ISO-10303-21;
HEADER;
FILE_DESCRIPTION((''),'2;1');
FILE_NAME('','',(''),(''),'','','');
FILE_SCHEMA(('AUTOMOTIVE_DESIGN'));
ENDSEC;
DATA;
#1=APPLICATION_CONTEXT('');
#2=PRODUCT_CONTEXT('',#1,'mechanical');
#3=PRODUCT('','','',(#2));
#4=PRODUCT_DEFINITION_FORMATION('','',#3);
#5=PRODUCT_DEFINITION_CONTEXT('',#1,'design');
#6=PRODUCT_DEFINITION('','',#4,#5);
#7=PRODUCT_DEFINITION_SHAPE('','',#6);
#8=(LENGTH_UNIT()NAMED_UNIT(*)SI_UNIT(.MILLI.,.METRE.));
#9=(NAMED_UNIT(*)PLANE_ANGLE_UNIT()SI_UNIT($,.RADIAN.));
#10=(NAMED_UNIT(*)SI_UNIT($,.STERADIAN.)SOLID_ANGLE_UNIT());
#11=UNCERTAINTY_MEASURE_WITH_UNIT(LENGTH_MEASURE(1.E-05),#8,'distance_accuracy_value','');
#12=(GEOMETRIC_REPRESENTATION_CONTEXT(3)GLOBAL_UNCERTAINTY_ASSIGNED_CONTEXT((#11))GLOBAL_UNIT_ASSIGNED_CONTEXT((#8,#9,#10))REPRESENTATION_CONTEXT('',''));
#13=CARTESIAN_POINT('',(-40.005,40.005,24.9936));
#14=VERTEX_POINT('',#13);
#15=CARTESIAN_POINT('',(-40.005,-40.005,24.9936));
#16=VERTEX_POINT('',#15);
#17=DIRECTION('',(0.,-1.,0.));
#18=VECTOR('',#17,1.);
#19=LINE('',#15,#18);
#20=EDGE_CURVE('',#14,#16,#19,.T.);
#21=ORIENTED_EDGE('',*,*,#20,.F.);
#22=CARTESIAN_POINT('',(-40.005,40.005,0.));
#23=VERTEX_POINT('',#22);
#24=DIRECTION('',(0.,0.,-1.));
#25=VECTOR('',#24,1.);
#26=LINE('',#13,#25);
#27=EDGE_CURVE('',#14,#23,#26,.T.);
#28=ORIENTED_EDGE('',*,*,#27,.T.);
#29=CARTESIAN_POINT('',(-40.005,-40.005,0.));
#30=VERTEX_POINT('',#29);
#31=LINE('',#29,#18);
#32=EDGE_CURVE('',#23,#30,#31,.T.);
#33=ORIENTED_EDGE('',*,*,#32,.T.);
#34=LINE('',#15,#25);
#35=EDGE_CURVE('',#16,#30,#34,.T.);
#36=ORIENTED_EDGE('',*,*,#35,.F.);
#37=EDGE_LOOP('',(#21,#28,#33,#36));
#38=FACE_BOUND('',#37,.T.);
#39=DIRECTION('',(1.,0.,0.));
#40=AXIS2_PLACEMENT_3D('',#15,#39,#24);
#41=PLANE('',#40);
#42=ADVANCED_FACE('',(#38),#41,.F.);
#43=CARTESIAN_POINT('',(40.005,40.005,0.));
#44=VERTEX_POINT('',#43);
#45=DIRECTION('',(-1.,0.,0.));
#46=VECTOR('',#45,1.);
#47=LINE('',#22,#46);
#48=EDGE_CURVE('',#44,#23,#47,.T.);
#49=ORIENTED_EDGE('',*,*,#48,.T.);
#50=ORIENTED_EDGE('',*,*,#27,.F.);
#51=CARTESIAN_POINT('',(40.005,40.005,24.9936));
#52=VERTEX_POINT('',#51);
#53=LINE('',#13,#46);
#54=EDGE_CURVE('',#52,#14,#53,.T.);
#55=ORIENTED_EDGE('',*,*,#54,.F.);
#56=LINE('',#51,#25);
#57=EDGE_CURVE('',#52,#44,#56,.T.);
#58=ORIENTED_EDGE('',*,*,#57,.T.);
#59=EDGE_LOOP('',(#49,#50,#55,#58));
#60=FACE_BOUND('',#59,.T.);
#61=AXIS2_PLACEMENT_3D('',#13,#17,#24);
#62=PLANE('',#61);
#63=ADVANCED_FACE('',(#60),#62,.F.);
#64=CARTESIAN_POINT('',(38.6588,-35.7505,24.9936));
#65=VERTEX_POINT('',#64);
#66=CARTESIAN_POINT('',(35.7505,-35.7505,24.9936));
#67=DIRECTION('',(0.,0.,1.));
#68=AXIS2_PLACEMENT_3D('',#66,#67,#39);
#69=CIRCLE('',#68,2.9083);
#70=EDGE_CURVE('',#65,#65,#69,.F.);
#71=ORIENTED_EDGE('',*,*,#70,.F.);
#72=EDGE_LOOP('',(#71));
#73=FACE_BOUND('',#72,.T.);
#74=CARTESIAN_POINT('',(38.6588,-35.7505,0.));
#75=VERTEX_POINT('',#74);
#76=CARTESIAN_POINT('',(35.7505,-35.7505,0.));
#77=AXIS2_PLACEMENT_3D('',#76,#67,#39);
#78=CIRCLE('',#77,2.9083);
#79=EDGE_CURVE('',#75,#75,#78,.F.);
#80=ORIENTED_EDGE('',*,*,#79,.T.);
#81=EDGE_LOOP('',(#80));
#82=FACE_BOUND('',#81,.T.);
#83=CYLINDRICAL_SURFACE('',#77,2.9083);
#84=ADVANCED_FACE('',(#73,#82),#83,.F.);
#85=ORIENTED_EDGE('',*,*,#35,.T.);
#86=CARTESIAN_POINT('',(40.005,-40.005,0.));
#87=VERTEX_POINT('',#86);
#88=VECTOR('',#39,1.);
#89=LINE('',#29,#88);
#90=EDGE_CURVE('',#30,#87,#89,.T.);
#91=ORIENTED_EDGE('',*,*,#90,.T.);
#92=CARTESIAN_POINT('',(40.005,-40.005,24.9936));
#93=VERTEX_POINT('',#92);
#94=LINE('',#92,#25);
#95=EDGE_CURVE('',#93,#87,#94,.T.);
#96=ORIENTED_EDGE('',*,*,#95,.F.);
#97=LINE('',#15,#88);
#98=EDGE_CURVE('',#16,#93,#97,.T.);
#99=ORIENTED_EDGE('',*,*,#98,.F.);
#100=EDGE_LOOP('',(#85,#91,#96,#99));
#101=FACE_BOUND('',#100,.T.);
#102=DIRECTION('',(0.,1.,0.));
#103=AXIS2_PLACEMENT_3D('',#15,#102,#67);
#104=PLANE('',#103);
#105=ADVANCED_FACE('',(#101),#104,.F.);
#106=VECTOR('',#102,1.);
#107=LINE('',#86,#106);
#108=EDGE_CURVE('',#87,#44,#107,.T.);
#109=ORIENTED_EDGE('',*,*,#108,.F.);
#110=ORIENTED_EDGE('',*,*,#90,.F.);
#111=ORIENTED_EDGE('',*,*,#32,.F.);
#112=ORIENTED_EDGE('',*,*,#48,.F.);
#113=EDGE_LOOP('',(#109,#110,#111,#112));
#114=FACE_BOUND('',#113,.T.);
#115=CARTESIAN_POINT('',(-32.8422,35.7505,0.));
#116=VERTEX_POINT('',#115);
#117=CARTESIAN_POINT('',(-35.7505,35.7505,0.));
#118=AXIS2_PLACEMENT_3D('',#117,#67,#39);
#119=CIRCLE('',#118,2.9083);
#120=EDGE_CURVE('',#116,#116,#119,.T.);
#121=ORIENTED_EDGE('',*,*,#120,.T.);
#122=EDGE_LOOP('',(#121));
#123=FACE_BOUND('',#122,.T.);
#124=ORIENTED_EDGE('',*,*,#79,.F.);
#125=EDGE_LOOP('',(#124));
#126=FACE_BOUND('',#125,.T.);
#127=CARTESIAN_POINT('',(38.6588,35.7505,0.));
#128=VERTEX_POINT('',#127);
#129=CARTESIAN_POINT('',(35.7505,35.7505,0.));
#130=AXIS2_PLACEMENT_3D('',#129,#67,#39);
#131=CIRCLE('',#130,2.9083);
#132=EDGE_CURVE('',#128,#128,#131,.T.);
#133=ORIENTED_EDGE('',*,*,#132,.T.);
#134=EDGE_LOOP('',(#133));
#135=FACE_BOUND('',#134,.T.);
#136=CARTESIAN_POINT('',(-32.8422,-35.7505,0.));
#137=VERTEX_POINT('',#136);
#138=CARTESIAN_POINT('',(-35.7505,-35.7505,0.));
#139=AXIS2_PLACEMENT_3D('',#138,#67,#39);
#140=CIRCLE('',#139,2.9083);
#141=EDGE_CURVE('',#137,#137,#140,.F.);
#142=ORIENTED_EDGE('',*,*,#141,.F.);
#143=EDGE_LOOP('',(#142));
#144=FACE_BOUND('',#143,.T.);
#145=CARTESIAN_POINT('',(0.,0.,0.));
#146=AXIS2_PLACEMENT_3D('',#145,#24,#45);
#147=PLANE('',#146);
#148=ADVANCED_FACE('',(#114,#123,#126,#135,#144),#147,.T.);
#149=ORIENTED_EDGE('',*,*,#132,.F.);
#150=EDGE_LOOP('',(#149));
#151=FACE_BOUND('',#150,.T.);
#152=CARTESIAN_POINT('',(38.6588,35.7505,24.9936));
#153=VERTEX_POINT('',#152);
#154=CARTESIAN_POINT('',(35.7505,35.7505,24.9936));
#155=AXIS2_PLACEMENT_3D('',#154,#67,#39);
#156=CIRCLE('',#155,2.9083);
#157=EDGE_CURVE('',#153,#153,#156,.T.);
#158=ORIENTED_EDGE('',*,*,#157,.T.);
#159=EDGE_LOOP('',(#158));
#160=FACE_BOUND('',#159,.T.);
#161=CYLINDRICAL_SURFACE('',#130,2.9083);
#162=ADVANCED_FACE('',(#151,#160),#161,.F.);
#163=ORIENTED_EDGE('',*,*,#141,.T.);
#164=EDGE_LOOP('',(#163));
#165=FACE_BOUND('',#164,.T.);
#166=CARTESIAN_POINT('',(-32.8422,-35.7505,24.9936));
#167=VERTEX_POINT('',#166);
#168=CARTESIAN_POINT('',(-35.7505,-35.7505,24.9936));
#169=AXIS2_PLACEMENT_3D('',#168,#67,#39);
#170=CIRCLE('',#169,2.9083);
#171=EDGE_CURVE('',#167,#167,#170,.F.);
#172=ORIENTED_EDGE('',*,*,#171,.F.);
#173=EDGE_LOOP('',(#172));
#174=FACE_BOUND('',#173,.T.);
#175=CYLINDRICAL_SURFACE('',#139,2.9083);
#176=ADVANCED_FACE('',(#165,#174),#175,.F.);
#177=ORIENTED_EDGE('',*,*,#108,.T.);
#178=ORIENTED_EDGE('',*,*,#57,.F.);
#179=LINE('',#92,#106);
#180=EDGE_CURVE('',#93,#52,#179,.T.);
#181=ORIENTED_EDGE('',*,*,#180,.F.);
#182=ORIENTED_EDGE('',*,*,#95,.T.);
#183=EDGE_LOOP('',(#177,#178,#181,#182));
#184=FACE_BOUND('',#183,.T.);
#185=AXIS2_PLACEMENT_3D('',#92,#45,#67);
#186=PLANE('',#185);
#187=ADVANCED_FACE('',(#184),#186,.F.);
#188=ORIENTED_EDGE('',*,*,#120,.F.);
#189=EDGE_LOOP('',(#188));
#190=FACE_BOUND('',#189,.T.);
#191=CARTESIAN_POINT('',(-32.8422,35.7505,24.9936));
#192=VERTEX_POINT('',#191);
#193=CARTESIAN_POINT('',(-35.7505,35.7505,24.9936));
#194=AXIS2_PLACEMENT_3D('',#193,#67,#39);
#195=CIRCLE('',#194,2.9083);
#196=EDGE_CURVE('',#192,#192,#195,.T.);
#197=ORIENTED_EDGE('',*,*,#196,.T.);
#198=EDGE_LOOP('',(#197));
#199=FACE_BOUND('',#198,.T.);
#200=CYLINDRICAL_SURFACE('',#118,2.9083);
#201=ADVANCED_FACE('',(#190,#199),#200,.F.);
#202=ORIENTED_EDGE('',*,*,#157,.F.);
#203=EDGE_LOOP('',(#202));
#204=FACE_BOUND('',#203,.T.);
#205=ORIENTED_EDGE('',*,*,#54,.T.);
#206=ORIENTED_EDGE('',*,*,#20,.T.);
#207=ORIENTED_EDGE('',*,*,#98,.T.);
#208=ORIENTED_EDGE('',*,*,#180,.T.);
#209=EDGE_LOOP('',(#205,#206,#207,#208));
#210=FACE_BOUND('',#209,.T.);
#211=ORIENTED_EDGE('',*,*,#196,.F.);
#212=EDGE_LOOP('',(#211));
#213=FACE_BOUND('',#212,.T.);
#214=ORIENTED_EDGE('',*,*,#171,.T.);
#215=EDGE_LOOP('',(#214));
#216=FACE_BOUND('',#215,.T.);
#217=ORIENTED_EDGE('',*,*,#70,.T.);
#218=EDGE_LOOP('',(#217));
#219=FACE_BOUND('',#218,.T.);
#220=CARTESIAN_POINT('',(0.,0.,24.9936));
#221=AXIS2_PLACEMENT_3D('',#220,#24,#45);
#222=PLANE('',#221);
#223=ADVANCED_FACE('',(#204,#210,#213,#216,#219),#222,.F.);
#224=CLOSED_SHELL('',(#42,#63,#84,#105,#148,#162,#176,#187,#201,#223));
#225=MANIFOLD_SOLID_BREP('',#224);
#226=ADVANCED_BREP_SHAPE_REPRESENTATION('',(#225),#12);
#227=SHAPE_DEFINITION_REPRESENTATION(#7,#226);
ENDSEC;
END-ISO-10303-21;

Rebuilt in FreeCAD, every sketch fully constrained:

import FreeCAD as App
import Part
import Sketcher
Q = App.Units.Quantity


def add_polygon(sketch, points):
    """Adds a closed chain of lines whose ends are joined by coincident constraints."""
    first, n = sketch.GeometryCount, len(points)
    for a, b in zip(points, points[1:] + points[:1]):
        sketch.addGeometry(Part.LineSegment(App.Vector(*a, 0), App.Vector(*b, 0)), False)
    for i in range(n):
        sketch.addConstraint(Sketcher.Constraint("Coincident", first + i, 2, first + (i + 1) % n, 1))

doc = App.newDocument("Part")
body = doc.addObject("PartDesign::Body", "Body")

# Sketch on XY plane
sketch1 = doc.addObject("Sketcher::SketchObject", "Sketch")
body.addObject(sketch1)
sketch1.AttachmentSupport = (doc.XY_Plane, [""])
sketch1.MapMode = "FlatFace"
add_polygon(sketch1, [(-40.005, 40.005), (-40.005, -40.005), (40.005, -40.005), (40.005, 40.005)])  # lines 0-3
sketch1.addConstraint([
    Sketcher.Constraint("Vertical", 0),
    Sketcher.Constraint("Horizontal", 1),
    Sketcher.Constraint("Vertical", 2),
    Sketcher.Constraint("Horizontal", 3),
    Sketcher.Constraint("Symmetric", 0, 2, 2, 2, -1, 1),
    Sketcher.Constraint("Equal", 3, 0),
    Sketcher.Constraint("DistanceX", 1, 1, 1, 2, Q("3.15 in")),
])
pad1 = doc.addObject("PartDesign::Pad", "Pad")
body.addObject(pad1)
pad1.Profile = sketch1
pad1.Length = Q("0.984 in")

# Sketch on XY plane
sketch2 = doc.addObject("Sketcher::SketchObject", "Sketch001")
body.addObject(sketch2)
sketch2.AttachmentSupport = (doc.XY_Plane, [""])
sketch2.MapMode = "FlatFace"
sketch2.AttachmentOffset = App.Placement(App.Vector(0, 0, 0.984 * 25.4), App.Rotation())
sketch2.addGeometry([
    Part.Circle(App.Vector(-35.7505, 35.7505, 0), App.Vector(0, 0, 1), 2.9083),
    Part.Circle(App.Vector(35.7505, 35.7505, 0), App.Vector(0, 0, 1), 2.9083),
    Part.Circle(App.Vector(-35.7505, -35.7505, 0), App.Vector(0, 0, 1), 2.9083),
    Part.Circle(App.Vector(35.7505, -35.7505, 0), App.Vector(0, 0, 1), 2.9083),
], False)
sketch2.addConstraint([
    Sketcher.Constraint("Equal", 0, 1),
    Sketcher.Constraint("Equal", 1, 2),
    Sketcher.Constraint("Equal", 2, 3),
    Sketcher.Constraint("Symmetric", 1, 3, 2, 3, -1, 1),
    Sketcher.Constraint("Symmetric", 0, 3, 3, 3, -1, 1),
    Sketcher.Constraint("Symmetric", 0, 3, 1, 3, -2),
    Sketcher.Constraint("Diameter", 0, Q("0.229 in")),
    Sketcher.Constraint("DistanceX", 0, 3, 1, 3, Q("2.815 in")),
    Sketcher.Constraint("DistanceY", 2, 3, 0, 3, Q("2.815 in")),
])
pocket1 = doc.addObject("PartDesign::Pocket", "Pocket")
body.addObject(pocket1)
pocket1.Profile = sketch2
pocket1.Type = "ThroughAll"

doc.recompute()
